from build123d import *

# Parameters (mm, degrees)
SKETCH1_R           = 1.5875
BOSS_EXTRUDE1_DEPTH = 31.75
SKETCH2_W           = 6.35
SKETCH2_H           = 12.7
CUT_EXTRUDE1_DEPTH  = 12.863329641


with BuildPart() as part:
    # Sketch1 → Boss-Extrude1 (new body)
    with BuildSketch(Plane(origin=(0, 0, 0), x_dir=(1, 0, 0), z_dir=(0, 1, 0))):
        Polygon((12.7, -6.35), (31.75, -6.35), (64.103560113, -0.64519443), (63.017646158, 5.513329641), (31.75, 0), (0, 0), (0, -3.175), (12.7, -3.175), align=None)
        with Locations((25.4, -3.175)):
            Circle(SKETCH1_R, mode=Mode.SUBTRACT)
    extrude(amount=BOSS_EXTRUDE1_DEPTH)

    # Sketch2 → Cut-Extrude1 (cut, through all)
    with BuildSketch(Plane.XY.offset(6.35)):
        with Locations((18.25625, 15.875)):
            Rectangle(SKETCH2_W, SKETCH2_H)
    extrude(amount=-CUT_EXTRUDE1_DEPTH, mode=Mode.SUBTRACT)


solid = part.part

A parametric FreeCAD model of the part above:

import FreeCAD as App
import Part
import Sketcher
from FreeCAD import Vector
Q = App.Units.Quantity


def add_polygon(sketch, points):
    """Adds a closed chain of lines whose ends are joined by coincident constraints."""
    first, n = sketch.GeometryCount, len(points)
    for a, b in zip(points, points[1:] + points[:1]):
        sketch.addGeometry(Part.LineSegment(App.Vector(*a, 0), App.Vector(*b, 0)), False)
    for i in range(n):
        sketch.addConstraint(Sketcher.Constraint("Coincident", first + i, 2, first + (i + 1) % n, 1))

doc = App.newDocument("Part")
params = doc.addObject("Spreadsheet::Sheet", "Params")
for row, (alias, value) in enumerate([
    ("sketch1_diameter", "0.125 in"),
    ("sketch1_width", "0.5 in"),
    ("sketch1_width2", "0.75 in"),
    ("sketch1_length", "1.25 in"),
    ("sketch1_height", "0.125 in"),
    ("pad1_length", "1.25 in"),
    ("sketch2_height", "0.5 in"),
    ("sketch2_width", "0.25 in"),
], start=1):
    params.set(f"A{row}", alias)
    params.set(f"B{row}", "=" + value)
    params.setAlias(f"B{row}", alias)

body = doc.addObject("PartDesign::Body", "Body")

# Sketch on XZ plane
sketch1 = body.newObject("Sketcher::SketchObject", "Sketch")
sketch1.AttachmentSupport = (doc.getObject("XZ_Plane"), [""])
sketch1.MapMode = "FlatFace"
add_polygon(sketch1, [(12.7, 6.3), (31.8, 6.3), (64.1, 0.6), (63, -5.5), (31.8, 0), (0, 0), (0, 3.2), (12.7, 3.2)])  # lines 0-7
sketch1.addGeometry(Part.Circle(Vector(25.4, 3.2, 0), Vector(0, 0, 1), 1.6), False)  # 8
sketch1.addConstraint([
    Sketcher.Constraint("Horizontal", 0),
    Sketcher.Constraint("Horizontal", 4),
    Sketcher.Constraint("Vertical", 5),
    Sketcher.Constraint("Horizontal", 6),
    Sketcher.Constraint("Vertical", 7),
    Sketcher.Constraint("Coincident", 4, 2, -1, 1),
    Sketcher.Constraint("Perpendicular", 1, 2),
    Sketcher.Constraint("Perpendicular", 2, 3),
    Sketcher.Constraint("Horizontal", 8, 3, 5, 2),
    Sketcher.Constraint("Vertical", 0, 2, 3, 2),
    Sketcher.Constraint("Equal", 5, 7),
    Sketcher.Constraint("Diameter", 8, Q("0.125 in")),
    Sketcher.Constraint("DistanceX", 6, 1, 6, 2, Q("0.5 in")),
    Sketcher.Constraint("DistanceX", -1, 1, 8, 3, Q("1 in")),
    Sketcher.Constraint("Angle", 1, Q("-10 deg")),
    Sketcher.Constraint("DistanceX", 0, 1, 0, 2, Q("0.75 in")),
    Sketcher.Constraint("Distance", 3, Q("1.25 in")),
    Sketcher.Constraint("DistanceY", 5, 1, 5, 2, Q("0.125 in")),
])
sketch1.setExpression("Constraints[19]", "Params.sketch1_diameter")
sketch1.setExpression("Constraints[20]", "Params.sketch1_width")
sketch1.setExpression("Constraints[23]", "Params.sketch1_width2")
sketch1.setExpression("Constraints[24]", "Params.sketch1_length")
sketch1.setExpression("Constraints[25]", "Params.sketch1_height")
pad1 = body.newObject("PartDesign::Pad", "Pad")
pad1.Profile = sketch1
pad1.setExpression("Length", "Params.pad1_length")
pad1.Reversed = True

# Sketch on XY plane
sketch2 = body.newObject("Sketcher::SketchObject", "Sketch001")
sketch2.AttachmentSupport = (doc.getObject("XY_Plane"), [""])
sketch2.MapMode = "FlatFace"
sketch2.AttachmentOffset = App.Placement(Vector(0, 0, 0.25 * 25.4), App.Rotation())
add_polygon(sketch2, [(15, 22), (15, 10), (21, 10), (21, 22)])  # lines 0-3
sketch2.addConstraint([
    Sketcher.Constraint("Vertical", 0),
    Sketcher.Constraint("Horizontal", 1),
    Sketcher.Constraint("Vertical", 2),
    Sketcher.Constraint("Horizontal", 3),
    Sketcher.Constraint("DistanceY", 0, 2, 0, 1, Q("0.5 in")),
    Sketcher.Constraint("DistanceX", 1, 1, 1, 2, Q("0.25 in")),
    Sketcher.Constraint("DistanceX", -1, 1, 0, 2, Q("0.59375 in")),
    Sketcher.Constraint("DistanceY", -1, 1, 0, 2, Q("0.375 in")),
])
sketch2.setExpression("Constraints[8]", "Params.sketch2_height")
sketch2.setExpression("Constraints[9]", "Params.sketch2_width")
pocket1 = body.newObject("PartDesign::Pocket", "Pocket")
pocket1.Profile = sketch2
pocket1.Type = "ThroughAll"

doc.recompute()
